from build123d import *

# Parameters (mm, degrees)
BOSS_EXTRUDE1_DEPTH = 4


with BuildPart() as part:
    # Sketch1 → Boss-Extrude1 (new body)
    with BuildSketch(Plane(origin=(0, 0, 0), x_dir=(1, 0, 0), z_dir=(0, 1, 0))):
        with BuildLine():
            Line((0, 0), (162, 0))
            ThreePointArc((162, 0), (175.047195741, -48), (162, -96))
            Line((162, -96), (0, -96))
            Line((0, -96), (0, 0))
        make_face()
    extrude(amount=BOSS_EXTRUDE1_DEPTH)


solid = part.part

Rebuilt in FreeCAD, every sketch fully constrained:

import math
import FreeCAD as App
import Part
import Sketcher

V = App.Vector
Q = App.Units.Quantity

doc = App.newDocument("Part")
body = doc.addObject("PartDesign::Body", "Body")

# Sketch on XZ plane
sketch1 = body.newObject("Sketcher::SketchObject", "Sketch")
sketch1.AttachmentSupport = (doc.getObject("XZ_Plane"), [""])
sketch1.MapMode = "FlatFace"
sketch1.addGeometry(Part.LineSegment(V(162, 0, 0), V(0, 0, 0)), False)
sketch1.addGeometry(Part.LineSegment(V(0, 0, 0), V(0, 96, 0)), False)
sketch1.addGeometry(Part.LineSegment(V(0, 96, 0), V(162, 96, 0)), False)
sketch1.addGeometry(Part.ArcOfCircle(Part.Circle(V(80, 48, 0), V(0, 0, 1), 95), math.radians(-30), math.radians(30)), False)
sketch1.addConstraint(Sketcher.Constraint("Coincident", 0, 2, 1, 1))
sketch1.addConstraint(Sketcher.Constraint("Coincident", 1, 2, 2, 1))
sketch1.addConstraint(Sketcher.Constraint("Coincident", 2, 2, 3, 2))
sketch1.addConstraint(Sketcher.Constraint("Coincident", 3, 1, 0, 1))
sketch1.addConstraint(Sketcher.Constraint("Horizontal", 0))
sketch1.addConstraint(Sketcher.Constraint("Vertical", 1))
sketch1.addConstraint(Sketcher.Constraint("Horizontal", 2))
sketch1.addConstraint(Sketcher.Constraint("Coincident", 0, 2, -1, 1))
sketch1.addConstraint(Sketcher.Constraint("Vertical", 2, 2, 3, 1))
sketch1.addConstraint(Sketcher.Constraint("DistanceX", 0, 2, 0, 1, Q("162 mm")))
sketch1.addConstraint(Sketcher.Constraint("DistanceY", 1, 1, 1, 2, Q("96 mm")))
sketch1.addConstraint(Sketcher.Constraint("Radius", 3, Q("94.818433 mm")))
pad1 = body.newObject("PartDesign::Pad", "Pad")
pad1.Profile = sketch1
pad1.Length = 4
pad1.Reversed = True

doc.recompute()
